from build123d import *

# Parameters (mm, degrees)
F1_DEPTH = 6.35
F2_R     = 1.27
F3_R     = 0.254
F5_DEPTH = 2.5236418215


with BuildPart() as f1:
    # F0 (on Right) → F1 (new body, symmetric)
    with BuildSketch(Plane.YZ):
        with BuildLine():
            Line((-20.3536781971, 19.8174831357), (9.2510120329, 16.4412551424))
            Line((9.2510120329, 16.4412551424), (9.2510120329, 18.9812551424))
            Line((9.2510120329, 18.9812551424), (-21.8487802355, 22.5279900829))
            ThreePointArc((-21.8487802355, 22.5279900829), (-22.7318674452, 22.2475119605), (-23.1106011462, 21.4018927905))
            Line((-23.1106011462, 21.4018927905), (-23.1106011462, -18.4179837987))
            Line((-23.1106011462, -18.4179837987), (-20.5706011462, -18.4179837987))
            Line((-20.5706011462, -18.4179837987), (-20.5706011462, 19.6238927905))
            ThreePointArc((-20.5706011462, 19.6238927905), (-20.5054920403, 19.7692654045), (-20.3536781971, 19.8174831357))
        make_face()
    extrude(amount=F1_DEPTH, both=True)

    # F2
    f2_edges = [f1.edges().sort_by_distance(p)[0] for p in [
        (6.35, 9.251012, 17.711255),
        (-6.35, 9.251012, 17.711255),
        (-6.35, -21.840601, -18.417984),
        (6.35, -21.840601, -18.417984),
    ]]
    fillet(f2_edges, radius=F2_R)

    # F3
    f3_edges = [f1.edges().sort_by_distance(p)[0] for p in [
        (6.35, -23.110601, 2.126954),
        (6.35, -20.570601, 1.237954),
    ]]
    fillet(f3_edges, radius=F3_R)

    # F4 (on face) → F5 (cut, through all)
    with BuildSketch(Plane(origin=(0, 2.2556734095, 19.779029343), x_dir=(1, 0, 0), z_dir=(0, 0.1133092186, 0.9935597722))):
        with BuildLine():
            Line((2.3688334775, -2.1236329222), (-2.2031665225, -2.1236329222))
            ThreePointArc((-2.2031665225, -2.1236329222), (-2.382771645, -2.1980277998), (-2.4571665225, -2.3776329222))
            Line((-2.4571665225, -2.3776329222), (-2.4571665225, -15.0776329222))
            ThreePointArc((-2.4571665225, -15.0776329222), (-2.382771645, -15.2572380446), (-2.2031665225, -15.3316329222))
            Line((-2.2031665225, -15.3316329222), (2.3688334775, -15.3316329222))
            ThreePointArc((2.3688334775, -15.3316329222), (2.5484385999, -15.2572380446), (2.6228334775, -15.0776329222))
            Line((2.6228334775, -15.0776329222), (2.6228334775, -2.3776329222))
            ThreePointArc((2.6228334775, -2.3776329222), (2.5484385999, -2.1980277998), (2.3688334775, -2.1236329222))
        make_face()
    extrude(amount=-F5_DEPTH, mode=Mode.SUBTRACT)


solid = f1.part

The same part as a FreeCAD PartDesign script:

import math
import FreeCAD as App
import Part
import Sketcher
Q = App.Units.Quantity


def edges_at(feature, points):
    """Names of the edges that pass closest to the given points."""
    edges = feature.Shape.Edges
    near = lambda p: min(range(len(edges)), key=lambda i: edges[i].distToShape(Part.Vertex(*p))[0])
    return sorted({f"Edge{near(p) + 1}" for p in points})

doc = App.newDocument("Part")
body = doc.addObject("PartDesign::Body", "Body")

sketch1 = doc.addObject("Sketcher::SketchObject", "Sketch")
body.addObject(sketch1)
sketch1.AttachmentSupport = (doc.YZ_Plane, [""])
sketch1.MapMode = "FlatFace"
sketch1.addGeometry([
    Part.LineSegment(App.Vector(-20.35, 19.82, 0), App.Vector(9.25, 16.44, 0)),
    Part.LineSegment(App.Vector(9.25, 16.44, 0), App.Vector(9.25, 18.98, 0)),
    Part.LineSegment(App.Vector(9.25, 18.98, 0), App.Vector(-21.85, 22.53, 0)),
    Part.ArcOfCircle(Part.Circle(App.Vector(-21.98, 21.4, 0), App.Vector(0, 0, 1), 1.13), math.radians(83), math.radians(180)),
    Part.LineSegment(App.Vector(-23.11, 21.4, 0), App.Vector(-23.11, -18.42, 0)),
    Part.LineSegment(App.Vector(-23.11, -18.42, 0), App.Vector(-20.57, -18.42, 0)),
    Part.LineSegment(App.Vector(-20.57, -18.42, 0), App.Vector(-20.57, 19.62, 0)),
    Part.ArcOfCircle(Part.Circle(App.Vector(-20.38, 19.62, 0), App.Vector(0, 0, 1), 0.19), math.radians(83), math.radians(180)),
], False)
sketch1.addConstraint([
    Sketcher.Constraint("Coincident", 0, 2, 1, 1),
    Sketcher.Constraint("Coincident", 1, 2, 2, 1),
    Sketcher.Constraint("Tangent", 2, 2, 3, 1),
    Sketcher.Constraint("Tangent", 3, 2, 4, 1),
    Sketcher.Constraint("Coincident", 4, 2, 5, 1),
    Sketcher.Constraint("Coincident", 5, 2, 6, 1),
    Sketcher.Constraint("Tangent", 6, 2, 7, 2),
    Sketcher.Constraint("Tangent", 7, 1, 0, 1),
    Sketcher.Constraint("Vertical", 1),
    Sketcher.Constraint("Vertical", 4),
    Sketcher.Constraint("Horizontal", 5),
    Sketcher.Constraint("Vertical", 6),
    Sketcher.Constraint("Parallel", 0, 2),
    Sketcher.Constraint("Equal", 5, 1),
    Sketcher.Constraint("DistanceX", 5, 1, 5, 2, Q("0.1 in")),
    Sketcher.Constraint("DistanceY", 7, 3, 3, 3, Q("0.07 in")),
    Sketcher.Constraint("Radius", 3, Q("1.133397 mm")),
    Sketcher.Constraint("Radius", 7, Q("0.194845 mm")),
    Sketcher.Constraint("DistanceX", 3, 2, -1, 1, Q("23.110601 mm")),
    Sketcher.Constraint("Distance", 2, Q("31.30138 mm")),
    Sketcher.Constraint("DistanceY", 4, 2, 4, 1, Q("39.819877 mm")),
    Sketcher.Constraint("DistanceY", -1, 1, 2, 2, Q("22.52799 mm")),
])
pad1 = doc.addObject("PartDesign::Pad", "Pad")
body.addObject(pad1)
pad1.Profile = sketch1
pad1.Length = Q("0.5 in")
pad1.Midplane = True
doc.recompute()

fillet = doc.addObject("PartDesign::Fillet", "Fillet")
body.addObject(fillet)
fillet.Base = (pad1, edges_at(pad1, [
    (6.35, 9.251, 17.711),
    (-6.35, 9.251, 17.711),
    (-6.35, -21.841, -18.418),
    (6.35, -21.841, -18.418),
]))
fillet.Radius = Q("0.05 in")
doc.recompute()

fillet2 = doc.addObject("PartDesign::Fillet", "Fillet001")
body.addObject(fillet2)
fillet2.Base = (fillet, edges_at(fillet, [(6.35, -23.111, 2.127), (6.35, -20.571, 1.238)]))
fillet2.Radius = Q("0.01 in")

sketch2 = doc.addObject("Sketcher::SketchObject", "Sketch001")
body.addObject(sketch2)
sketch2.Placement = App.Placement(App.Vector(0, 2.255673, 19.779029), App.Rotation(App.Vector(1, 0, 0), App.Vector(0, 0.993559772, -0.113309219), App.Vector(0, 0.113309219, 0.993559772), "ZXY"))
sketch2.addGeometry([
    Part.LineSegment(App.Vector(2.37, -2.12, 0), App.Vector(-2.2, -2.12, 0)),
    Part.ArcOfCircle(Part.Circle(App.Vector(-2.2, -2.38, 0), App.Vector(0, 0, 1), 0.25), math.radians(90), math.radians(180)),
    Part.LineSegment(App.Vector(-2.46, -2.38, 0), App.Vector(-2.46, -15.08, 0)),
    Part.ArcOfCircle(Part.Circle(App.Vector(-2.2, -15.08, 0), App.Vector(0, 0, 1), 0.25), math.radians(180), math.radians(270)),
    Part.LineSegment(App.Vector(-2.2, -15.33, 0), App.Vector(2.37, -15.33, 0)),
    Part.ArcOfCircle(Part.Circle(App.Vector(2.37, -15.08, 0), App.Vector(0, 0, 1), 0.25), math.radians(-90), math.radians(0)),
    Part.LineSegment(App.Vector(2.62, -15.08, 0), App.Vector(2.62, -2.38, 0)),
    Part.ArcOfCircle(Part.Circle(App.Vector(2.37, -2.38, 0), App.Vector(0, 0, 1), 0.25), math.radians(0), math.radians(90)),
], False)
sketch2.addConstraint([
    Sketcher.Constraint("Tangent", 0, 2, 1, 1),
    Sketcher.Constraint("Tangent", 1, 2, 2, 1),
    Sketcher.Constraint("Tangent", 2, 2, 3, 1),
    Sketcher.Constraint("Tangent", 3, 2, 4, 1),
    Sketcher.Constraint("Tangent", 4, 2, 5, 1),
    Sketcher.Constraint("Tangent", 5, 2, 6, 1),
    Sketcher.Constraint("Tangent", 6, 2, 7, 1),
    Sketcher.Constraint("Tangent", 7, 2, 0, 1),
    Sketcher.Constraint("Horizontal", 0),
    Sketcher.Constraint("Vertical", 2),
    Sketcher.Constraint("Horizontal", 4),
    Sketcher.Constraint("Vertical", 6),
    Sketcher.Constraint("Equal", 1, 3),
    Sketcher.Constraint("Equal", 3, 5),
    Sketcher.Constraint("Equal", 5, 7),
    Sketcher.Constraint("Radius", 1, Q("0.01 in")),
    Sketcher.Constraint("DistanceY", 2, 2, 2, 1, Q("0.5 in")),
    Sketcher.Constraint("DistanceX", 0, 2, 0, 1, Q("0.18 in")),
    Sketcher.Constraint("DistanceX", 1, 3, -1, 1, Q("2.203167 mm")),
    Sketcher.Constraint("DistanceY", 1, 3, -1, 1, Q("2.377633 mm")),
])
pocket1 = doc.addObject("PartDesign::Pocket", "Pocket")
body.addObject(pocket1)
pocket1.Profile = sketch2
pocket1.Type = "ThroughAll"

doc.recompute()
